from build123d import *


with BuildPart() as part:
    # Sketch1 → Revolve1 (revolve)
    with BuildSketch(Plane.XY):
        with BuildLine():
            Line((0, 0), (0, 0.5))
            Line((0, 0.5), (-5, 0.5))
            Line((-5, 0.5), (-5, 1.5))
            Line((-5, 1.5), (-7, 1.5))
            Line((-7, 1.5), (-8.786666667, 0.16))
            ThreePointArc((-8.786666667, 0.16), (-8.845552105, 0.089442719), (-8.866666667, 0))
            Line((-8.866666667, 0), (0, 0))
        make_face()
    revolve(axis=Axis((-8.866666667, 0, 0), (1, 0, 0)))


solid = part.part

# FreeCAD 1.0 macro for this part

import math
import FreeCAD as App
import Part
import Sketcher
from FreeCAD import Vector

doc = App.newDocument("Part")
body = doc.addObject("PartDesign::Body", "Body")

sketch1 = body.newObject("Sketcher::SketchObject", "Sketch")
sketch1.AttachmentSupport = (doc.getObject("XY_Plane"), [""])
sketch1.MapMode = "FlatFace"
sketch1.addGeometry([
    Part.LineSegment(Vector(0, 0, 0), Vector(0, 0.5, 0)),
    Part.LineSegment(Vector(0, 0.5, 0), Vector(-5, 0.5, 0)),
    Part.LineSegment(Vector(-5, 0.5, 0), Vector(-5, 1.5, 0)),
    Part.LineSegment(Vector(-5, 1.5, 0), Vector(-7, 1.5, 0)),
    Part.LineSegment(Vector(-7, 1.5, 0), Vector(-8.79, 0.16, 0)),
    Part.ArcOfCircle(Part.Circle(Vector(-8.67, 0, 0), Vector(0, 0, 1), 0.2), math.radians(127), math.radians(180)),
    Part.LineSegment(Vector(-8.87, 0, 0), Vector(0, 0, 0)),
], False)
sketch1.addConstraint([
    Sketcher.Constraint("Coincident", 0, 2, 1, 1),
    Sketcher.Constraint("Coincident", 1, 2, 2, 1),
    Sketcher.Constraint("Coincident", 2, 2, 3, 1),
    Sketcher.Constraint("Coincident", 3, 2, 4, 1),
    Sketcher.Constraint("Tangent", 4, 2, 5, 1),
    Sketcher.Constraint("Coincident", 5, 2, 6, 1),
    Sketcher.Constraint("Coincident", 6, 2, 0, 1),
    Sketcher.Constraint("Vertical", 0),
    Sketcher.Constraint("Horizontal", 1),
    Sketcher.Constraint("Vertical", 2),
    Sketcher.Constraint("Horizontal", 3),
    Sketcher.Constraint("Horizontal", 6),
    Sketcher.Constraint("Coincident", 6, 2, -1, 1),
    Sketcher.Constraint("PointOnObject", 5, 3, -1),
    Sketcher.Constraint("Radius", 5, 0.2),
    Sketcher.Constraint("DistanceX", 1, 2, 1, 1, 5.0),
    Sketcher.Constraint("DistanceX", 3, 2, 3, 1, 2.0),
    Sketcher.Constraint("DistanceY", 2, 1, 2, 2, 1.0),
    Sketcher.Constraint("DistanceY", 0, 1, 0, 2, 0.5),
    Sketcher.Constraint("DistanceY", -1, 1, 4, 2, 0.16),
])
revolution = body.newObject("PartDesign::Revolution", "Revolution")
revolution.Profile = sketch1
revolution.ReferenceAxis = (sketch1, ["H_Axis"])
revolution.Angle = 360

doc.recompute()
